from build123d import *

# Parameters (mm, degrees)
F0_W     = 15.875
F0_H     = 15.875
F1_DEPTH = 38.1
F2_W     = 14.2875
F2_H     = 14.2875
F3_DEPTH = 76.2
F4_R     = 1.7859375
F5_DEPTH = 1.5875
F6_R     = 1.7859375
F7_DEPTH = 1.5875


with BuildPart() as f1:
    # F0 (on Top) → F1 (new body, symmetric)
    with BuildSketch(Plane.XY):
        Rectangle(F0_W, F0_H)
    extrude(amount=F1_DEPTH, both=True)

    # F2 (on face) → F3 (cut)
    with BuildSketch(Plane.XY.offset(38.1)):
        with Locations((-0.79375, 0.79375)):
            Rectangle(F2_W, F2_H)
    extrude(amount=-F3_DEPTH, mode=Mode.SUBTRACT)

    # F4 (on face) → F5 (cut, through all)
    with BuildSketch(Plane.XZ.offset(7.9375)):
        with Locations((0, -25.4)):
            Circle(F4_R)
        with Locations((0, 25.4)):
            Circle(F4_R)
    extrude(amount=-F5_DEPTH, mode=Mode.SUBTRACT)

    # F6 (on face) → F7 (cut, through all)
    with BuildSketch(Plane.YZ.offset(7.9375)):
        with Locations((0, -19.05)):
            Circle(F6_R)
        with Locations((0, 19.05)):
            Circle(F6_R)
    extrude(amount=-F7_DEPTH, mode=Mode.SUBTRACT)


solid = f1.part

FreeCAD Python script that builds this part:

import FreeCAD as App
import Part
import Sketcher
from FreeCAD import Vector
Q = App.Units.Quantity

doc = App.newDocument("Part")
body = doc.addObject("PartDesign::Body", "Body")

sketch1 = body.newObject("Sketcher::SketchObject", "Sketch")
sketch1.AttachmentSupport = (doc.getObject("XY_Plane"), [""])
sketch1.MapMode = "FlatFace"
sketch1.addGeometry([
    Part.LineSegment(Vector(-8, 8, 0), Vector(-8, -8, 0)),
    Part.LineSegment(Vector(-8, -8, 0), Vector(8, -8, 0)),
    Part.LineSegment(Vector(8, -8, 0), Vector(8, 8, 0)),
    Part.LineSegment(Vector(8, 8, 0), Vector(-8, 8, 0)),
], False)
sketch1.addConstraint([
    Sketcher.Constraint("Coincident", 0, 2, 1, 1),
    Sketcher.Constraint("Coincident", 1, 2, 2, 1),
    Sketcher.Constraint("Coincident", 2, 2, 3, 1),
    Sketcher.Constraint("Coincident", 3, 2, 0, 1),
    Sketcher.Constraint("Vertical", 0),
    Sketcher.Constraint("Horizontal", 1),
    Sketcher.Constraint("Vertical", 2),
    Sketcher.Constraint("Horizontal", 3),
    Sketcher.Constraint("Symmetric", 0, 2, 2, 2, -1, 1),
    Sketcher.Constraint("Equal", 3, 0),
    Sketcher.Constraint("DistanceX", 1, 1, 1, 2, Q("0.625 in")),
])
pad1 = body.newObject("PartDesign::Pad", "Pad")
pad1.Profile = sketch1
pad1.Length = Q("3 in")
pad1.Midplane = True

sketch2 = body.newObject("Sketcher::SketchObject", "Sketch001")
sketch2.AttachmentSupport = (doc.getObject("XY_Plane"), [""])
sketch2.MapMode = "FlatFace"
sketch2.AttachmentOffset = App.Placement(Vector(0, 0, 1.5 * 25.4), App.Rotation())
sketch2.addGeometry([
    Part.LineSegment(Vector(-8, 8, 0), Vector(-8, -6, 0)),
    Part.LineSegment(Vector(-8, -6, 0), Vector(6, -6, 0)),
    Part.LineSegment(Vector(6, -6, 0), Vector(6, 8, 0)),
    Part.LineSegment(Vector(6, 8, 0), Vector(-8, 8, 0)),
], False)
sketch2.addConstraint([
    Sketcher.Constraint("Coincident", 0, 2, 1, 1),
    Sketcher.Constraint("Coincident", 1, 2, 2, 1),
    Sketcher.Constraint("Coincident", 2, 2, 3, 1),
    Sketcher.Constraint("Coincident", 3, 2, 0, 1),
    Sketcher.Constraint("Vertical", 0),
    Sketcher.Constraint("Horizontal", 1),
    Sketcher.Constraint("Vertical", 2),
    Sketcher.Constraint("Horizontal", 3),
    Sketcher.Constraint("Equal", 3, 0),
    Sketcher.Constraint("DistanceX", 1, 1, 1, 2, Q("0.5625 in")),
    Sketcher.Constraint("DistanceY", 0, 2, -1, 1, Q("0.25 in")),
    Sketcher.Constraint("DistanceX", -1, 1, 1, 2, Q("0.25 in")),
])
pocket1 = body.newObject("PartDesign::Pocket", "Pocket")
pocket1.Profile = sketch2
pocket1.Length = Q("3 in")

sketch3 = body.newObject("Sketcher::SketchObject", "Sketch002")
sketch3.AttachmentSupport = (doc.getObject("XZ_Plane"), [""])
sketch3.MapMode = "FlatFace"
sketch3.AttachmentOffset = App.Placement(Vector(0, 0, 0.3125 * 25.4), App.Rotation())
sketch3.addGeometry([
    Part.Circle(Vector(0, -25.4, 0), Vector(0, 0, 1), 1.8),
    Part.Circle(Vector(0, 25.4, 0), Vector(0, 0, 1), 1.8),
], False)
sketch3.addConstraint([
    Sketcher.Constraint("Equal", 0, 1),
    Sketcher.Constraint("Symmetric", 0, 3, 1, 3, -1, 1),
    Sketcher.Constraint("PointOnObject", 0, 3, -2),
    Sketcher.Constraint("Diameter", 0, Q("0.140625 in")),
    Sketcher.Constraint("DistanceY", 0, 3, -1, 1, Q("1 in")),
])
pocket2 = body.newObject("PartDesign::Pocket", "Pocket001")
pocket2.Profile = sketch3
pocket2.Type = "ThroughAll"

sketch4 = body.newObject("Sketcher::SketchObject", "Sketch003")
sketch4.AttachmentSupport = (doc.getObject("YZ_Plane"), [""])
sketch4.MapMode = "FlatFace"
sketch4.AttachmentOffset = App.Placement(Vector(0, 0, 0.3125 * 25.4), App.Rotation())
sketch4.addGeometry([
    Part.Circle(Vector(0, -19.1, 0), Vector(0, 0, 1), 1.8),
    Part.Circle(Vector(0, 19.1, 0), Vector(0, 0, 1), 1.8),
], False)
sketch4.addConstraint([
    Sketcher.Constraint("Equal", 0, 1),
    Sketcher.Constraint("Symmetric", 0, 3, 1, 3, -1, 1),
    Sketcher.Constraint("PointOnObject", 0, 3, -2),
    Sketcher.Constraint("Diameter", 0, Q("0.140625 in")),
    Sketcher.Constraint("DistanceY", 0, 3, 1, 3, Q("1.5 in")),
])
pocket3 = body.newObject("PartDesign::Pocket", "Pocket002")
pocket3.Profile = sketch4
pocket3.Type = "ThroughAll"

doc.recompute()
